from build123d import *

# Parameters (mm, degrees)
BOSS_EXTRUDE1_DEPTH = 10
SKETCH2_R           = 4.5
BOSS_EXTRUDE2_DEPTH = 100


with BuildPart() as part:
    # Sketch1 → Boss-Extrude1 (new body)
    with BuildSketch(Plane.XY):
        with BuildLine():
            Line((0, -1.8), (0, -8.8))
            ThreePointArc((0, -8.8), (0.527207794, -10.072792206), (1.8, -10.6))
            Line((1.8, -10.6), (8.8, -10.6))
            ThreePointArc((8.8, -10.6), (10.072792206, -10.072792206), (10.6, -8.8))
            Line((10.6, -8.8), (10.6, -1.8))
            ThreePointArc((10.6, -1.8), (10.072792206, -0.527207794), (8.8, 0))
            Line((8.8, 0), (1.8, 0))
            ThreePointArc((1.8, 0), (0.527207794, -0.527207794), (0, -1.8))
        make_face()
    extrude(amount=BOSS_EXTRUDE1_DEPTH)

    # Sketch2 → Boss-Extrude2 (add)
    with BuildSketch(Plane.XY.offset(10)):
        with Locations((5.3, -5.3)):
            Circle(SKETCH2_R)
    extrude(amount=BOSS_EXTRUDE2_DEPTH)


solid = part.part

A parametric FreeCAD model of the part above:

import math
import FreeCAD as App
import Part
import Sketcher
from FreeCAD import Vector
Q = App.Units.Quantity

doc = App.newDocument("Part")
body = doc.addObject("PartDesign::Body", "Body")

sketch1 = body.newObject("Sketcher::SketchObject", "Sketch")
sketch1.AttachmentSupport = (doc.getObject("XY_Plane"), [""])
sketch1.MapMode = "FlatFace"
sketch1.addGeometry([
    Part.LineSegment(Vector(0, -1.8, 0), Vector(0, -8.8, 0)),
    Part.ArcOfCircle(Part.Circle(Vector(1.8, -8.8, 0), Vector(0, 0, 1), 1.8), math.radians(180), math.radians(270)),
    Part.LineSegment(Vector(1.8, -10.6, 0), Vector(8.8, -10.6, 0)),
    Part.ArcOfCircle(Part.Circle(Vector(8.8, -8.8, 0), Vector(0, 0, 1), 1.8), math.radians(-90), math.radians(0)),
    Part.LineSegment(Vector(10.6, -8.8, 0), Vector(10.6, -1.8, 0)),
    Part.ArcOfCircle(Part.Circle(Vector(8.8, -1.8, 0), Vector(0, 0, 1), 1.8), math.radians(0), math.radians(90)),
    Part.LineSegment(Vector(8.8, 0, 0), Vector(1.8, 0, 0)),
    Part.ArcOfCircle(Part.Circle(Vector(1.8, -1.8, 0), Vector(0, 0, 1), 1.8), math.radians(90), math.radians(180)),
], False)
sketch1.addConstraint([
    Sketcher.Constraint("Tangent", 0, 2, 1, 1),
    Sketcher.Constraint("Tangent", 1, 2, 2, 1),
    Sketcher.Constraint("Tangent", 2, 2, 3, 1),
    Sketcher.Constraint("Tangent", 3, 2, 4, 1),
    Sketcher.Constraint("Tangent", 4, 2, 5, 1),
    Sketcher.Constraint("Tangent", 5, 2, 6, 1),
    Sketcher.Constraint("Tangent", 6, 2, 7, 1),
    Sketcher.Constraint("Tangent", 7, 2, 0, 1),
    Sketcher.Constraint("Vertical", 0),
    Sketcher.Constraint("Horizontal", 2),
    Sketcher.Constraint("Vertical", 4),
    Sketcher.Constraint("Horizontal", 6),
    Sketcher.Constraint("Equal", 1, 3),
    Sketcher.Constraint("Equal", 3, 5),
    Sketcher.Constraint("Equal", 5, 7),
    Sketcher.Constraint("PointOnObject", 0, 2, -2),
    Sketcher.Constraint("PointOnObject", 5, 2, -1),
    Sketcher.Constraint("Equal", 6, 0),
    Sketcher.Constraint("Radius", 1, Q("1.8 mm")),
    Sketcher.Constraint("DistanceX", 2, 1, 2, 2, Q("7 mm")),
])
pad1 = body.newObject("PartDesign::Pad", "Pad")
pad1.Profile = sketch1
pad1.Length = 10

sketch2 = body.newObject("Sketcher::SketchObject", "Sketch001")
sketch2.AttachmentSupport = (doc.getObject("XY_Plane"), [""])
sketch2.MapMode = "FlatFace"
sketch2.AttachmentOffset = App.Placement(Vector(0, 0, 10), App.Rotation())
sketch2.addGeometry(Part.Circle(Vector(5.3, -5.3, 0), Vector(0, 0, 1), 4.5), False)
sketch2.addConstraint([
    Sketcher.Constraint("Diameter", 0, Q("9 mm")),
    Sketcher.Constraint("DistanceX", -1, 1, 0, 3, Q("5.3 mm")),
    Sketcher.Constraint("DistanceY", 0, 3, -1, 1, Q("5.3 mm")),
])
pad2 = body.newObject("PartDesign::Pad", "Pad001")
pad2.Profile = sketch2
pad2.Length = 100

doc.recompute()
